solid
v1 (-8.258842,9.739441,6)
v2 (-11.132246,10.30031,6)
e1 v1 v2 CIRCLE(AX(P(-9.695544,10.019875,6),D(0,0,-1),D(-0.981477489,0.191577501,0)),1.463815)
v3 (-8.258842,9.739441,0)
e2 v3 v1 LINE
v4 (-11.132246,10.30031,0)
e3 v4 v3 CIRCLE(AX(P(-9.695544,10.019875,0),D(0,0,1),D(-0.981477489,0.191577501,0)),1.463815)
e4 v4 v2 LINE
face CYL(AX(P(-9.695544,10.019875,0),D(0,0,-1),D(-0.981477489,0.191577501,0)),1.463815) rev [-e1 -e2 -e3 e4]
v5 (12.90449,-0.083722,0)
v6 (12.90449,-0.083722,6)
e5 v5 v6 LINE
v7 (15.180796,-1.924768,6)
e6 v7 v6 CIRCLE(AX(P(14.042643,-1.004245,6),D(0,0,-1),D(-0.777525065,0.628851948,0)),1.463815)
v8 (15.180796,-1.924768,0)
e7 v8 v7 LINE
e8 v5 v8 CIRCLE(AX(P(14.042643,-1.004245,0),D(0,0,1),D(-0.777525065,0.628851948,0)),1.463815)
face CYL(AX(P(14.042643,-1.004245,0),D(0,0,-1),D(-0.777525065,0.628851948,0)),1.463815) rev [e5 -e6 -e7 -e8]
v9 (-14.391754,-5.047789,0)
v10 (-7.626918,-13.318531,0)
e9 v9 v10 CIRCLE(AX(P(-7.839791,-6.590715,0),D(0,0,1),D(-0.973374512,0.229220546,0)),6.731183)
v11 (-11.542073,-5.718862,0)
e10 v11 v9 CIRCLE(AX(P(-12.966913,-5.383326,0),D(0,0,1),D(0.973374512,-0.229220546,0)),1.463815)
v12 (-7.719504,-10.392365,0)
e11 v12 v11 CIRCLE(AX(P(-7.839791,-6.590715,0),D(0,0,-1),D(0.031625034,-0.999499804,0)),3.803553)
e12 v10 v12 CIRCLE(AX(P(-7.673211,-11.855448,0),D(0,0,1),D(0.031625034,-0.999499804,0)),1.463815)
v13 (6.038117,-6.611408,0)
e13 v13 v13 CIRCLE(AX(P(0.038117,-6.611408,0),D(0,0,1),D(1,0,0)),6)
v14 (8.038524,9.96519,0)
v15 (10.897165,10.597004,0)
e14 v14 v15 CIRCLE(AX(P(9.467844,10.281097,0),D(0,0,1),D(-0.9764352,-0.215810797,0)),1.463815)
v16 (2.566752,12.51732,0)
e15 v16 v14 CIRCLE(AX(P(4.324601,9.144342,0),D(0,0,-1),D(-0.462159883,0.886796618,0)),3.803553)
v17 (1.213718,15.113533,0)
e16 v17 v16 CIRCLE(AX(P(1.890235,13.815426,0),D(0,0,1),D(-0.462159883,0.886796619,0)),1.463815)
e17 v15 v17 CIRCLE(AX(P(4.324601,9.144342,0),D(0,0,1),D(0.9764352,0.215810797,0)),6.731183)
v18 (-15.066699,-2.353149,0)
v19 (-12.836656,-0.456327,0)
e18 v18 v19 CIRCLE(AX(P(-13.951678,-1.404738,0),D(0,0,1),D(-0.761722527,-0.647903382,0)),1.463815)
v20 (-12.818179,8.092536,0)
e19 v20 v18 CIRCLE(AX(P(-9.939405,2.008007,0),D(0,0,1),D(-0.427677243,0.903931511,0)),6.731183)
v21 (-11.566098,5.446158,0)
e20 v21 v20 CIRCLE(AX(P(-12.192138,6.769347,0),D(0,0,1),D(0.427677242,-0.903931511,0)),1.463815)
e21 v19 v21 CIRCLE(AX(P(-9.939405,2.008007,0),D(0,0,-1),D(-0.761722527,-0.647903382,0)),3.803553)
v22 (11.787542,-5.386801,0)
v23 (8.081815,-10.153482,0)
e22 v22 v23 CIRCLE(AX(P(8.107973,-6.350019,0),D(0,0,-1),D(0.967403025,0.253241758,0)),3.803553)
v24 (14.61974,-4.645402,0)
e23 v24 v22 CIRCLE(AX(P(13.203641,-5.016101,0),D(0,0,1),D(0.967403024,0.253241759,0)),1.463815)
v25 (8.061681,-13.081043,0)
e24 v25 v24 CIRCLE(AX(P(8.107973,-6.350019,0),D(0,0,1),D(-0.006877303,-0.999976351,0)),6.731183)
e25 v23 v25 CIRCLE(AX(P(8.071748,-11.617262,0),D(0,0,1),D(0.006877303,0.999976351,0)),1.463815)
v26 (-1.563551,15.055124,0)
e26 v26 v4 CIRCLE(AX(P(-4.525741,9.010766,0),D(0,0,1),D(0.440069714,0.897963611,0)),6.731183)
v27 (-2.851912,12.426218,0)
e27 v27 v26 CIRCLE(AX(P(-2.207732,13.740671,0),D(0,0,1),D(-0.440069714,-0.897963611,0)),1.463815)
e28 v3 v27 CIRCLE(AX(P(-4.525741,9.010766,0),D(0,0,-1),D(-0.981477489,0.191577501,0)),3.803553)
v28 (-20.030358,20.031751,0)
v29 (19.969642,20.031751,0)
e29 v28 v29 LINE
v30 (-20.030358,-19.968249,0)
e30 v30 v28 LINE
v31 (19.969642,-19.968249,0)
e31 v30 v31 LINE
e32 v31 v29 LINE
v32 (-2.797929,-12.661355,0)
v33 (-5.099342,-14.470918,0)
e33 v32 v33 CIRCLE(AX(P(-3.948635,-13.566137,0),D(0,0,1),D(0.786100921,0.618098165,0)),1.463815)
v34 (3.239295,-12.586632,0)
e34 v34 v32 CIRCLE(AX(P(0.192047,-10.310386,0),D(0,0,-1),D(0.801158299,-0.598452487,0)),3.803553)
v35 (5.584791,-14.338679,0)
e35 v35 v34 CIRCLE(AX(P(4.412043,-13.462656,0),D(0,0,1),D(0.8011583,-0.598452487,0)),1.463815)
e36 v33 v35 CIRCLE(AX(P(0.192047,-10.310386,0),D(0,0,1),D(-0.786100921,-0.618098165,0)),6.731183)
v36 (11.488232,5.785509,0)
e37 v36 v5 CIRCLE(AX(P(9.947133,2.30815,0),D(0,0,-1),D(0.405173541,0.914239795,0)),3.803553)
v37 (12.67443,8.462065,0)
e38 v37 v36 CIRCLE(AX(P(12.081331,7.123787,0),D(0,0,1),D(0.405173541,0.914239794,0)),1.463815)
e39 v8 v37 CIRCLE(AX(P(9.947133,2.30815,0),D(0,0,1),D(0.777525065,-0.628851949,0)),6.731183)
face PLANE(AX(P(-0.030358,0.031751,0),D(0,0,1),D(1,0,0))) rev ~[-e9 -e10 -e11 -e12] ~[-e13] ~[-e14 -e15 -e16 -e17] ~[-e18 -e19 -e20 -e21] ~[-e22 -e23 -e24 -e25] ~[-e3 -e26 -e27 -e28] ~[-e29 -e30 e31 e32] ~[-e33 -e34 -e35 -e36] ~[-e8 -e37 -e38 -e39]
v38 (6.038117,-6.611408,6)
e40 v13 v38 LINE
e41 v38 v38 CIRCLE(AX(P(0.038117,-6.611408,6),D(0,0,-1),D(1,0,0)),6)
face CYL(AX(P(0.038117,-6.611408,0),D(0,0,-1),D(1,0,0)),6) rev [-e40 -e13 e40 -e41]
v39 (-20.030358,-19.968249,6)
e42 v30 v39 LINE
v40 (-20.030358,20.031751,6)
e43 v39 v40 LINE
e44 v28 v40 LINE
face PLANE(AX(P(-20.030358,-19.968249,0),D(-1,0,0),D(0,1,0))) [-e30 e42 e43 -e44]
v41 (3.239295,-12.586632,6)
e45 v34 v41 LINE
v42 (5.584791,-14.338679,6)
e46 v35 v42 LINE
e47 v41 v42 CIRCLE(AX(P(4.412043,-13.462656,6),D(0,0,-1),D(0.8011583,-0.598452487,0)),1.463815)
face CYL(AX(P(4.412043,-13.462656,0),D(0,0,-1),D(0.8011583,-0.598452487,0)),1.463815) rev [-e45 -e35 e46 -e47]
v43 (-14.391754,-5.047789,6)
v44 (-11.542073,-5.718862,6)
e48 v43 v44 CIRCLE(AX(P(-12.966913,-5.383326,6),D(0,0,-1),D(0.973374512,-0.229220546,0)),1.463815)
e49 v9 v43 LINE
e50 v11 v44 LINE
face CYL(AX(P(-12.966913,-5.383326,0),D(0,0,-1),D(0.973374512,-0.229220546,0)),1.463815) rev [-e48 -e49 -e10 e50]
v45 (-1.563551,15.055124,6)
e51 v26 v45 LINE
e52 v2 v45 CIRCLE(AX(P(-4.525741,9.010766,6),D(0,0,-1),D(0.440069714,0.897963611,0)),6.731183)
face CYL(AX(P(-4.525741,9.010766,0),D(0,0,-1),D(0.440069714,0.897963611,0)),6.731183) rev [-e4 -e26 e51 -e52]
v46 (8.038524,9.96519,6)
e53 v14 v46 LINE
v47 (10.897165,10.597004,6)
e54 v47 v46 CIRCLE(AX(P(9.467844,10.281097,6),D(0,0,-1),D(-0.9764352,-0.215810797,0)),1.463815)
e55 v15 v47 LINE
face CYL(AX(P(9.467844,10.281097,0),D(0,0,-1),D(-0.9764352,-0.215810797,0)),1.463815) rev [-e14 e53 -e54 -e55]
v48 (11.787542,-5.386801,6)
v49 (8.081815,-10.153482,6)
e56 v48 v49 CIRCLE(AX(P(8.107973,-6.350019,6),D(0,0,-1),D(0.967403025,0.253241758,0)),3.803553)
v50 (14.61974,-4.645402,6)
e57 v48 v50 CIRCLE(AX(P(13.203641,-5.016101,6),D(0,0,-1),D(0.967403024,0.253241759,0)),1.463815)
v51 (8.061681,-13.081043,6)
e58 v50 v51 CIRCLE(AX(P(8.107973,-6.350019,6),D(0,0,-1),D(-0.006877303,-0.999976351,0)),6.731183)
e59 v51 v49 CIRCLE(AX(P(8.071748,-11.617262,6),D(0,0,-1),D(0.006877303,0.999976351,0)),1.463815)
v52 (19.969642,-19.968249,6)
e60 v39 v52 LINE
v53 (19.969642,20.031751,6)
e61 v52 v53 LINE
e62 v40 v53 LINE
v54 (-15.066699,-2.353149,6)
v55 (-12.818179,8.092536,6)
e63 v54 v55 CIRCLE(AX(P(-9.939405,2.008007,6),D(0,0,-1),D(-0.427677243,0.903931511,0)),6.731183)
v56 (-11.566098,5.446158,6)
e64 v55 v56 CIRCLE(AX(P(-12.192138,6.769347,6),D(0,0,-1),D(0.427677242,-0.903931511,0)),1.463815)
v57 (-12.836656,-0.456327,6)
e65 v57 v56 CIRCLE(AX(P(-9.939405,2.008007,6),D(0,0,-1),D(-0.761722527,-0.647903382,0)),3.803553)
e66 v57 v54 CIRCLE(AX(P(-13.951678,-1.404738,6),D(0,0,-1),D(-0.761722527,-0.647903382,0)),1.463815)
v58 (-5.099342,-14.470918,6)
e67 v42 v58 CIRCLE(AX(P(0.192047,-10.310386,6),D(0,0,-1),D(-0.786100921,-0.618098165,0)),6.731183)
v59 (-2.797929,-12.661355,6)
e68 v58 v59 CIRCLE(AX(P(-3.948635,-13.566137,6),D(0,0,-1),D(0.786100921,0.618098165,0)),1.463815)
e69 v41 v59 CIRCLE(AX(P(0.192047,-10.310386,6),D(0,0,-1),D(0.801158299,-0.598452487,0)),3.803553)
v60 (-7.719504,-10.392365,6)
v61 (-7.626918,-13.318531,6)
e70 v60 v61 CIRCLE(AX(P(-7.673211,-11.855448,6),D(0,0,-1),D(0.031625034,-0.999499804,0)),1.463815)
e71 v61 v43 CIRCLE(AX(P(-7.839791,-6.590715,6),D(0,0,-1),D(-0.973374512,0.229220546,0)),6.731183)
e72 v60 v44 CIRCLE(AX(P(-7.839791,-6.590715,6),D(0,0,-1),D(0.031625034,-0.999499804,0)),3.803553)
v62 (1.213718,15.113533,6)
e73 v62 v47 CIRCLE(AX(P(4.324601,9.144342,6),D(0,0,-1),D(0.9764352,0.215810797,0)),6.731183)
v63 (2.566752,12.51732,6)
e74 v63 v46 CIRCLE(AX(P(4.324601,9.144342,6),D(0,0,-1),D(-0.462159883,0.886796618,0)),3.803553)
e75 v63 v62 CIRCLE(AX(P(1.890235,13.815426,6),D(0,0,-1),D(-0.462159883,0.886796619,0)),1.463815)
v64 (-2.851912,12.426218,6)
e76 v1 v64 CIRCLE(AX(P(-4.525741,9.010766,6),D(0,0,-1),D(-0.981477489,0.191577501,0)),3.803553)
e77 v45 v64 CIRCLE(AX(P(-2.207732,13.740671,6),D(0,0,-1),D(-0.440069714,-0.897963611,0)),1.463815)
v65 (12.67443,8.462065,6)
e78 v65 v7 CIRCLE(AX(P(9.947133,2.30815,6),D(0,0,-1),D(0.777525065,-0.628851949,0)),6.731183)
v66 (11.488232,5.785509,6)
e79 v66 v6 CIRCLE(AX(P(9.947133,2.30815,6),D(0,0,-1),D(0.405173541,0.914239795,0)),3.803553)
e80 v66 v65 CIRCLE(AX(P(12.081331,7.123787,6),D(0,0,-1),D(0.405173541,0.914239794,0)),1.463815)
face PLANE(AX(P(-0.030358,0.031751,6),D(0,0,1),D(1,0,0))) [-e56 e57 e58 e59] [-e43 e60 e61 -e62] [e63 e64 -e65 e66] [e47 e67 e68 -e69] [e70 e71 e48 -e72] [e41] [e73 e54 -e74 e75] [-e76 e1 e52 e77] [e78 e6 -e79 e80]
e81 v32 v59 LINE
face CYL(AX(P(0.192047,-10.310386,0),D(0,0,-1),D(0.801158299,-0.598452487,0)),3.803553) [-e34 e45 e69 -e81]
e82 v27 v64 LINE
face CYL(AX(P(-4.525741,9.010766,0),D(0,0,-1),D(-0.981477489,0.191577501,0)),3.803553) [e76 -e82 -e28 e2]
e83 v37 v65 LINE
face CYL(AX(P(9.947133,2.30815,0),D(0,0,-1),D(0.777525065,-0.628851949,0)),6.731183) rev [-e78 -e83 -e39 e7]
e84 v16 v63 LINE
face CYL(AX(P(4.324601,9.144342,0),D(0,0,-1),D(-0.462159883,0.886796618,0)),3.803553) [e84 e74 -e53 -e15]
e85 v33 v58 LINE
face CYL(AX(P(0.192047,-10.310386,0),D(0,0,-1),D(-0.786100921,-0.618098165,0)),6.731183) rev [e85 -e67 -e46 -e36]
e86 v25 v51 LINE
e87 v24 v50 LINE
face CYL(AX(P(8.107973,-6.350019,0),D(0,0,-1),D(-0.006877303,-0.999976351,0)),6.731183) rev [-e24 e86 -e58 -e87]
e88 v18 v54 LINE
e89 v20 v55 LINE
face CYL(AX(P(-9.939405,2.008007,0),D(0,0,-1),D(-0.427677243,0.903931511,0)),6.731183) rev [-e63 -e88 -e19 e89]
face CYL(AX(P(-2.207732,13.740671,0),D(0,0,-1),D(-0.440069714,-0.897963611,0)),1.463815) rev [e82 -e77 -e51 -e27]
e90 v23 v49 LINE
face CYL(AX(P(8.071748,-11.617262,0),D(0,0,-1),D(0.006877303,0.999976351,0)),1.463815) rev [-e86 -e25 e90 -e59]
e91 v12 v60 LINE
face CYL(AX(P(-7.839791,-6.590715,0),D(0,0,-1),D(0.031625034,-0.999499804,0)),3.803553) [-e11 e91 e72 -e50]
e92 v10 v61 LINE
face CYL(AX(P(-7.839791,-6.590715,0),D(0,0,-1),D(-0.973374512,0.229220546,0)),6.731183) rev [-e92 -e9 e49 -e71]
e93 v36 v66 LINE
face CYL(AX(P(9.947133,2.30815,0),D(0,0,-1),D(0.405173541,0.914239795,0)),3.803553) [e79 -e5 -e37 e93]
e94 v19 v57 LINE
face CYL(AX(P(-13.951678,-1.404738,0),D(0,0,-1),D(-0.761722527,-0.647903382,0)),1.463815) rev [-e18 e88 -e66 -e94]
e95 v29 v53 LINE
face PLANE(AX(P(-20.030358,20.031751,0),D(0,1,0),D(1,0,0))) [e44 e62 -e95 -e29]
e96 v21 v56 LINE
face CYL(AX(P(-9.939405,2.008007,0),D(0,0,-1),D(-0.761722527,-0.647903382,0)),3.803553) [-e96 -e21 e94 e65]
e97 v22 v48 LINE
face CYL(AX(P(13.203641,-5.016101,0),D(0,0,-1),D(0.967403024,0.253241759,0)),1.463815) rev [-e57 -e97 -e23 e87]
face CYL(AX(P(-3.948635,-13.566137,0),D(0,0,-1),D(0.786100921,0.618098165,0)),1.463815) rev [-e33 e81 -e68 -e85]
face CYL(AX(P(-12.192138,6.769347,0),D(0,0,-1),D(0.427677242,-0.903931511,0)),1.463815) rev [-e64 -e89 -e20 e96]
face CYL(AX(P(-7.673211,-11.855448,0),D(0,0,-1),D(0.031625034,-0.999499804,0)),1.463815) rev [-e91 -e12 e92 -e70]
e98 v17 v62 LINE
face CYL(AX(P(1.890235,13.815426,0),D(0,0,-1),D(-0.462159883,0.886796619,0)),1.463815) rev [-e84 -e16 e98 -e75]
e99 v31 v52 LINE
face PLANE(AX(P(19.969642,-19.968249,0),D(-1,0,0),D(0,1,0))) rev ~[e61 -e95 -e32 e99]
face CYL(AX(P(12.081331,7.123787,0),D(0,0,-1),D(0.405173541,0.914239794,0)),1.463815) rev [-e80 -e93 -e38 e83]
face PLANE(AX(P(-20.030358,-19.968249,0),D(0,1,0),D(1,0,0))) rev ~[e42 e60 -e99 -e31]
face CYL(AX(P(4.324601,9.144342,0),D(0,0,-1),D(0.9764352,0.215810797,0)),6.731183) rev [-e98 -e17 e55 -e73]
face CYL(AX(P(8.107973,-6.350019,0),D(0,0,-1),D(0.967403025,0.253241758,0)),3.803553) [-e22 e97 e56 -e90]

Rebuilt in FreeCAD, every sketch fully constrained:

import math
import FreeCAD as App
import Part
import Sketcher
from FreeCAD import Vector

doc = App.newDocument("Part")
params = doc.addObject("Spreadsheet::Sheet", "Params")
for row, (alias, value) in enumerate([
    ("sketch1_width", "40 mm"),
    ("pad1_length", "6 mm"),
    ("sketch2_diameter", "12 mm"),
], start=1):
    params.set(f"A{row}", alias)
    params.set(f"B{row}", "=" + value)
    params.setAlias(f"B{row}", alias)

body = doc.addObject("PartDesign::Body", "Body")

sketch1 = doc.addObject("Sketcher::SketchObject", "Sketch")
body.addObject(sketch1)
sketch1.AttachmentSupport = (doc.XY_Plane, [""])
sketch1.MapMode = "FlatFace"
sketch1.addGeometry([
    Part.LineSegment(Vector(-20, 20, 0), Vector(-20, -20, 0)),
    Part.LineSegment(Vector(-20, -20, 0), Vector(20, -20, 0)),
    Part.LineSegment(Vector(20, -20, 0), Vector(20, 20, 0)),
    Part.LineSegment(Vector(20, 20, 0), Vector(-20, 20, 0)),
], False)
sketch1.addConstraint([
    Sketcher.Constraint("Coincident", 0, 2, 1, 1),
    Sketcher.Constraint("Coincident", 1, 2, 2, 1),
    Sketcher.Constraint("Coincident", 2, 2, 3, 1),
    Sketcher.Constraint("Coincident", 3, 2, 0, 1),
    Sketcher.Constraint("Vertical", 0),
    Sketcher.Constraint("Horizontal", 1),
    Sketcher.Constraint("Vertical", 2),
    Sketcher.Constraint("Horizontal", 3),
    Sketcher.Constraint("Equal", 3, 0),
    Sketcher.Constraint("DistanceX", 1, 1, 1, 2, 40.0),
    Sketcher.Constraint("DistanceX", 0, 2, -1, 1, 20.030358),
    Sketcher.Constraint("DistanceY", 0, 2, -1, 1, 19.968249),
])
sketch1.setExpression("Constraints[9]", "Params.sketch1_width")
pad1 = doc.addObject("PartDesign::Pad", "Pad")
body.addObject(pad1)
pad1.Profile = sketch1
pad1.setExpression("Length", "Params.pad1_length")

sketch2 = doc.addObject("Sketcher::SketchObject", "Sketch001")
body.addObject(sketch2)
sketch2.AttachmentSupport = (doc.XY_Plane, [""])
sketch2.MapMode = "FlatFace"
sketch2.addGeometry([
    Part.Circle(Vector(0, -6.6, 0), Vector(0, 0, 1), 6),
    Part.ArcOfCircle(Part.Circle(Vector(-4.5, 9, 0), Vector(0, 0, 1), 6.7), math.radians(64), math.radians(169)),
    Part.ArcOfCircle(Part.Circle(Vector(-9.7, 10, 0), Vector(0, 0, 1), 1.5), math.radians(169), math.radians(349)),
    Part.ArcOfCircle(Part.Circle(Vector(-4.5, 9, 0), Vector(0, 0, 1), 3.8), math.radians(64), math.radians(169)),
    Part.ArcOfCircle(Part.Circle(Vector(-2.2, 13.7, 0), Vector(0, 0, 1), 1.5), math.radians(-116), math.radians(64)),
    Part.ArcOfCircle(Part.Circle(Vector(4.3, 9.1, 0), Vector(0, 0, 1), 6.7), math.radians(12), math.radians(118)),
    Part.ArcOfCircle(Part.Circle(Vector(1.9, 13.8, 0), Vector(0, 0, 1), 1.5), math.radians(118), math.radians(298)),
    Part.ArcOfCircle(Part.Circle(Vector(4.3, 9.1, 0), Vector(0, 0, 1), 3.8), math.radians(12), math.radians(118)),
    Part.ArcOfCircle(Part.Circle(Vector(9.5, 10.3, 0), Vector(0, 0, 1), 1.5), math.radians(-168), math.radians(12)),
    Part.ArcOfCircle(Part.Circle(Vector(9.9, 2.3, 0), Vector(0, 0, 1), 6.7), math.radians(-39), math.radians(66)),
    Part.ArcOfCircle(Part.Circle(Vector(12.1, 7.1, 0), Vector(0, 0, 1), 1.5), math.radians(66), math.radians(246)),
    Part.ArcOfCircle(Part.Circle(Vector(9.9, 2.3, 0), Vector(0, 0, 1), 3.8), math.radians(-39), math.radians(66)),
    Part.ArcOfCircle(Part.Circle(Vector(14, -1, 0), Vector(0, 0, 1), 1.5), math.radians(141), math.radians(321)),
    Part.ArcOfCircle(Part.Circle(Vector(8.1, -6.4, 0), Vector(0, 0, 1), 6.7), math.radians(-90), math.radians(15)),
    Part.ArcOfCircle(Part.Circle(Vector(13.2, -5, 0), Vector(0, 0, 1), 1.5), math.radians(15), math.radians(195)),
    Part.ArcOfCircle(Part.Circle(Vector(8.1, -6.4, 0), Vector(0, 0, 1), 3.8), math.radians(-90), math.radians(15)),
    Part.ArcOfCircle(Part.Circle(Vector(8.1, -11.6, 0), Vector(0, 0, 1), 1.5), math.radians(90), math.radians(270)),
    Part.ArcOfCircle(Part.Circle(Vector(0.2, -10.3, 0), Vector(0, 0, 1), 6.7), math.radians(-142), math.radians(-37)),
    Part.ArcOfCircle(Part.Circle(Vector(4.4, -13.5, 0), Vector(0, 0, 1), 1.5), math.radians(-37), math.radians(143)),
    Part.ArcOfCircle(Part.Circle(Vector(0.2, -10.3, 0), Vector(0, 0, 1), 3.8), math.radians(-142), math.radians(-37)),
    Part.ArcOfCircle(Part.Circle(Vector(-3.9, -13.6, 0), Vector(0, 0, 1), 1.5), math.radians(38), math.radians(218)),
    Part.ArcOfCircle(Part.Circle(Vector(-7.8, -6.6, 0), Vector(0, 0, 1), 6.7), math.radians(167), math.radians(272)),
    Part.ArcOfCircle(Part.Circle(Vector(-7.7, -11.9, 0), Vector(0, 0, 1), 1.5), math.radians(-88), math.radians(92)),
    Part.ArcOfCircle(Part.Circle(Vector(-7.8, -6.6, 0), Vector(0, 0, 1), 3.8), math.radians(167), math.radians(272)),
    Part.ArcOfCircle(Part.Circle(Vector(-13, -5.4, 0), Vector(0, 0, 1), 1.5), math.radians(-13), math.radians(167)),
    Part.ArcOfCircle(Part.Circle(Vector(-9.9, 2, 0), Vector(0, 0, 1), 6.7), math.radians(115), math.radians(220)),
    Part.ArcOfCircle(Part.Circle(Vector(-14, -1.4, 0), Vector(0, 0, 1), 1.5), math.radians(-140), math.radians(40)),
    Part.ArcOfCircle(Part.Circle(Vector(-9.9, 2, 0), Vector(0, 0, 1), 3.8), math.radians(115), math.radians(220)),
    Part.ArcOfCircle(Part.Circle(Vector(-12.2, 6.8, 0), Vector(0, 0, 1), 1.5), math.radians(-65), math.radians(115)),
], False)
sketch2.addConstraint([
    Sketcher.Constraint("Tangent", 1, 2, 2, 1),
    Sketcher.Constraint("Tangent", 2, 2, 3, 2),
    Sketcher.Constraint("Tangent", 3, 1, 4, 1),
    Sketcher.Constraint("Tangent", 4, 2, 1, 1),
    Sketcher.Constraint("Tangent", 5, 2, 6, 1),
    Sketcher.Constraint("Tangent", 6, 2, 7, 2),
    Sketcher.Constraint("Tangent", 7, 1, 8, 1),
    Sketcher.Constraint("Tangent", 8, 2, 5, 1),
    Sketcher.Constraint("Tangent", 9, 2, 10, 1),
    Sketcher.Constraint("Tangent", 10, 2, 11, 2),
    Sketcher.Constraint("Tangent", 11, 1, 12, 1),
    Sketcher.Constraint("Tangent", 12, 2, 9, 1),
    Sketcher.Constraint("Tangent", 13, 2, 14, 1),
    Sketcher.Constraint("Tangent", 14, 2, 15, 2),
    Sketcher.Constraint("Tangent", 15, 1, 16, 1),
    Sketcher.Constraint("Tangent", 16, 2, 13, 1),
    Sketcher.Constraint("Tangent", 17, 2, 18, 1),
    Sketcher.Constraint("Tangent", 18, 2, 19, 2),
    Sketcher.Constraint("Tangent", 19, 1, 20, 1),
    Sketcher.Constraint("Tangent", 20, 2, 17, 1),
    Sketcher.Constraint("Tangent", 21, 2, 22, 1),
    Sketcher.Constraint("Tangent", 22, 2, 23, 2),
    Sketcher.Constraint("Tangent", 23, 1, 24, 1),
    Sketcher.Constraint("Tangent", 24, 2, 21, 1),
    Sketcher.Constraint("Tangent", 25, 2, 26, 1),
    Sketcher.Constraint("Tangent", 26, 2, 27, 2),
    Sketcher.Constraint("Tangent", 27, 1, 28, 1),
    Sketcher.Constraint("Tangent", 28, 2, 25, 1),
    Sketcher.Constraint("Coincident", 3, 3, 1, 3),
    Sketcher.Constraint("Coincident", 7, 3, 5, 3),
    Sketcher.Constraint("Coincident", 11, 3, 9, 3),
    Sketcher.Constraint("Coincident", 15, 3, 13, 3),
    Sketcher.Constraint("Coincident", 19, 3, 17, 3),
    Sketcher.Constraint("Coincident", 23, 3, 21, 3),
    Sketcher.Constraint("Coincident", 27, 3, 25, 3),
    Sketcher.Constraint("Equal", 1, 5),
    Sketcher.Constraint("Equal", 4, 6),
    Sketcher.Constraint("Equal", 5, 9),
    Sketcher.Constraint("Equal", 8, 10),
    Sketcher.Constraint("Equal", 9, 13),
    Sketcher.Constraint("Equal", 12, 14),
    Sketcher.Constraint("Equal", 13, 17),
    Sketcher.Constraint("Equal", 16, 18),
    Sketcher.Constraint("Equal", 17, 21),
    Sketcher.Constraint("Equal", 20, 22),
    Sketcher.Constraint("Equal", 21, 25),
    Sketcher.Constraint("Equal", 24, 26),
    Sketcher.Constraint("Diameter", 0, 12.0),
    Sketcher.Constraint("Radius", 1, 6.731183),
    Sketcher.Constraint("Radius", 2, 1.463815),
    Sketcher.Constraint("DistanceX", -1, 1, 5, 3, 4.324601),
    Sketcher.Constraint("DistanceY", 14, 3, -1, 1, 5.016101),
    Sketcher.Constraint("DistanceY", 14, 2, -1, 1, 5.386801),
    Sketcher.Constraint("DistanceX", 25, 2, -1, 1, 15.066699),
    Sketcher.Constraint("DistanceX", 9, 3, 10, 3, 2.134198),
    Sketcher.Constraint("DistanceX", 8, 3, 12, 3, 4.574799),
    Sketcher.Constraint("DistanceX", 17, 3, 16, 3, 7.879701),
    Sketcher.Constraint("DistanceX", 1, 2, 2, 3, 1.436702),
    Sketcher.Constraint("DistanceX", 1, 3, -1, 1, 4.525741),
    Sketcher.Constraint("DistanceX", 4, 3, -1, 1, 2.207732),
    Sketcher.Constraint("DistanceY", -1, 1, 4, 3, 13.740671),
    Sketcher.Constraint("DistanceY", -1, 1, 9, 3, 2.30815),
    Sketcher.Constraint("DistanceX", -1, 1, 10, 3, 12.081331),
    Sketcher.Constraint("DistanceX", -1, 1, 14, 3, 13.203641),
    Sketcher.Constraint("DistanceX", -1, 1, 16, 3, 8.071748),
    Sketcher.Constraint("DistanceX", 21, 3, -1, 1, 7.839791),
    Sketcher.Constraint("DistanceX", 22, 3, -1, 1, 7.673211),
    Sketcher.Constraint("DistanceY", 26, 3, -1, 1, 1.404738),
    Sketcher.Constraint("DistanceX", 28, 3, -1, 1, 12.192138),
    Sketcher.Constraint("DistanceX", -1, 1, 5, 2, 1.213718),
    Sketcher.Constraint("DistanceY", -1, 1, 6, 2, 12.51732),
    Sketcher.Constraint("DistanceY", -1, 1, 7, 1, 9.96519),
    Sketcher.Constraint("DistanceX", -1, 1, 17, 2, 5.584791),
    Sketcher.Constraint("DistanceY", 17, 2, -1, 1, 14.338679),
    Sketcher.Constraint("DistanceX", 19, 1, -1, 1, 2.797929),
    Sketcher.Constraint("DistanceY", 21, 2, -1, 1, 13.318531),
    Sketcher.Constraint("DistanceY", 24, 2, -1, 1, 5.047789),
    Sketcher.Constraint("DistanceY", 25, 2, -1, 1, 2.353149),
    Sketcher.Constraint("DistanceX", 2, 3, 0, 3, 9.733661),
    Sketcher.Constraint("DistanceY", 0, 3, 4, 3, 20.352079),
])
sketch2.setExpression("Constraints[47]", "Params.sketch2_diameter")
pocket1 = doc.addObject("PartDesign::Pocket", "Pocket")
body.addObject(pocket1)
pocket1.Profile = sketch2
pocket1.Type = "ThroughAll"
pocket1.Reversed = True

doc.recompute()
